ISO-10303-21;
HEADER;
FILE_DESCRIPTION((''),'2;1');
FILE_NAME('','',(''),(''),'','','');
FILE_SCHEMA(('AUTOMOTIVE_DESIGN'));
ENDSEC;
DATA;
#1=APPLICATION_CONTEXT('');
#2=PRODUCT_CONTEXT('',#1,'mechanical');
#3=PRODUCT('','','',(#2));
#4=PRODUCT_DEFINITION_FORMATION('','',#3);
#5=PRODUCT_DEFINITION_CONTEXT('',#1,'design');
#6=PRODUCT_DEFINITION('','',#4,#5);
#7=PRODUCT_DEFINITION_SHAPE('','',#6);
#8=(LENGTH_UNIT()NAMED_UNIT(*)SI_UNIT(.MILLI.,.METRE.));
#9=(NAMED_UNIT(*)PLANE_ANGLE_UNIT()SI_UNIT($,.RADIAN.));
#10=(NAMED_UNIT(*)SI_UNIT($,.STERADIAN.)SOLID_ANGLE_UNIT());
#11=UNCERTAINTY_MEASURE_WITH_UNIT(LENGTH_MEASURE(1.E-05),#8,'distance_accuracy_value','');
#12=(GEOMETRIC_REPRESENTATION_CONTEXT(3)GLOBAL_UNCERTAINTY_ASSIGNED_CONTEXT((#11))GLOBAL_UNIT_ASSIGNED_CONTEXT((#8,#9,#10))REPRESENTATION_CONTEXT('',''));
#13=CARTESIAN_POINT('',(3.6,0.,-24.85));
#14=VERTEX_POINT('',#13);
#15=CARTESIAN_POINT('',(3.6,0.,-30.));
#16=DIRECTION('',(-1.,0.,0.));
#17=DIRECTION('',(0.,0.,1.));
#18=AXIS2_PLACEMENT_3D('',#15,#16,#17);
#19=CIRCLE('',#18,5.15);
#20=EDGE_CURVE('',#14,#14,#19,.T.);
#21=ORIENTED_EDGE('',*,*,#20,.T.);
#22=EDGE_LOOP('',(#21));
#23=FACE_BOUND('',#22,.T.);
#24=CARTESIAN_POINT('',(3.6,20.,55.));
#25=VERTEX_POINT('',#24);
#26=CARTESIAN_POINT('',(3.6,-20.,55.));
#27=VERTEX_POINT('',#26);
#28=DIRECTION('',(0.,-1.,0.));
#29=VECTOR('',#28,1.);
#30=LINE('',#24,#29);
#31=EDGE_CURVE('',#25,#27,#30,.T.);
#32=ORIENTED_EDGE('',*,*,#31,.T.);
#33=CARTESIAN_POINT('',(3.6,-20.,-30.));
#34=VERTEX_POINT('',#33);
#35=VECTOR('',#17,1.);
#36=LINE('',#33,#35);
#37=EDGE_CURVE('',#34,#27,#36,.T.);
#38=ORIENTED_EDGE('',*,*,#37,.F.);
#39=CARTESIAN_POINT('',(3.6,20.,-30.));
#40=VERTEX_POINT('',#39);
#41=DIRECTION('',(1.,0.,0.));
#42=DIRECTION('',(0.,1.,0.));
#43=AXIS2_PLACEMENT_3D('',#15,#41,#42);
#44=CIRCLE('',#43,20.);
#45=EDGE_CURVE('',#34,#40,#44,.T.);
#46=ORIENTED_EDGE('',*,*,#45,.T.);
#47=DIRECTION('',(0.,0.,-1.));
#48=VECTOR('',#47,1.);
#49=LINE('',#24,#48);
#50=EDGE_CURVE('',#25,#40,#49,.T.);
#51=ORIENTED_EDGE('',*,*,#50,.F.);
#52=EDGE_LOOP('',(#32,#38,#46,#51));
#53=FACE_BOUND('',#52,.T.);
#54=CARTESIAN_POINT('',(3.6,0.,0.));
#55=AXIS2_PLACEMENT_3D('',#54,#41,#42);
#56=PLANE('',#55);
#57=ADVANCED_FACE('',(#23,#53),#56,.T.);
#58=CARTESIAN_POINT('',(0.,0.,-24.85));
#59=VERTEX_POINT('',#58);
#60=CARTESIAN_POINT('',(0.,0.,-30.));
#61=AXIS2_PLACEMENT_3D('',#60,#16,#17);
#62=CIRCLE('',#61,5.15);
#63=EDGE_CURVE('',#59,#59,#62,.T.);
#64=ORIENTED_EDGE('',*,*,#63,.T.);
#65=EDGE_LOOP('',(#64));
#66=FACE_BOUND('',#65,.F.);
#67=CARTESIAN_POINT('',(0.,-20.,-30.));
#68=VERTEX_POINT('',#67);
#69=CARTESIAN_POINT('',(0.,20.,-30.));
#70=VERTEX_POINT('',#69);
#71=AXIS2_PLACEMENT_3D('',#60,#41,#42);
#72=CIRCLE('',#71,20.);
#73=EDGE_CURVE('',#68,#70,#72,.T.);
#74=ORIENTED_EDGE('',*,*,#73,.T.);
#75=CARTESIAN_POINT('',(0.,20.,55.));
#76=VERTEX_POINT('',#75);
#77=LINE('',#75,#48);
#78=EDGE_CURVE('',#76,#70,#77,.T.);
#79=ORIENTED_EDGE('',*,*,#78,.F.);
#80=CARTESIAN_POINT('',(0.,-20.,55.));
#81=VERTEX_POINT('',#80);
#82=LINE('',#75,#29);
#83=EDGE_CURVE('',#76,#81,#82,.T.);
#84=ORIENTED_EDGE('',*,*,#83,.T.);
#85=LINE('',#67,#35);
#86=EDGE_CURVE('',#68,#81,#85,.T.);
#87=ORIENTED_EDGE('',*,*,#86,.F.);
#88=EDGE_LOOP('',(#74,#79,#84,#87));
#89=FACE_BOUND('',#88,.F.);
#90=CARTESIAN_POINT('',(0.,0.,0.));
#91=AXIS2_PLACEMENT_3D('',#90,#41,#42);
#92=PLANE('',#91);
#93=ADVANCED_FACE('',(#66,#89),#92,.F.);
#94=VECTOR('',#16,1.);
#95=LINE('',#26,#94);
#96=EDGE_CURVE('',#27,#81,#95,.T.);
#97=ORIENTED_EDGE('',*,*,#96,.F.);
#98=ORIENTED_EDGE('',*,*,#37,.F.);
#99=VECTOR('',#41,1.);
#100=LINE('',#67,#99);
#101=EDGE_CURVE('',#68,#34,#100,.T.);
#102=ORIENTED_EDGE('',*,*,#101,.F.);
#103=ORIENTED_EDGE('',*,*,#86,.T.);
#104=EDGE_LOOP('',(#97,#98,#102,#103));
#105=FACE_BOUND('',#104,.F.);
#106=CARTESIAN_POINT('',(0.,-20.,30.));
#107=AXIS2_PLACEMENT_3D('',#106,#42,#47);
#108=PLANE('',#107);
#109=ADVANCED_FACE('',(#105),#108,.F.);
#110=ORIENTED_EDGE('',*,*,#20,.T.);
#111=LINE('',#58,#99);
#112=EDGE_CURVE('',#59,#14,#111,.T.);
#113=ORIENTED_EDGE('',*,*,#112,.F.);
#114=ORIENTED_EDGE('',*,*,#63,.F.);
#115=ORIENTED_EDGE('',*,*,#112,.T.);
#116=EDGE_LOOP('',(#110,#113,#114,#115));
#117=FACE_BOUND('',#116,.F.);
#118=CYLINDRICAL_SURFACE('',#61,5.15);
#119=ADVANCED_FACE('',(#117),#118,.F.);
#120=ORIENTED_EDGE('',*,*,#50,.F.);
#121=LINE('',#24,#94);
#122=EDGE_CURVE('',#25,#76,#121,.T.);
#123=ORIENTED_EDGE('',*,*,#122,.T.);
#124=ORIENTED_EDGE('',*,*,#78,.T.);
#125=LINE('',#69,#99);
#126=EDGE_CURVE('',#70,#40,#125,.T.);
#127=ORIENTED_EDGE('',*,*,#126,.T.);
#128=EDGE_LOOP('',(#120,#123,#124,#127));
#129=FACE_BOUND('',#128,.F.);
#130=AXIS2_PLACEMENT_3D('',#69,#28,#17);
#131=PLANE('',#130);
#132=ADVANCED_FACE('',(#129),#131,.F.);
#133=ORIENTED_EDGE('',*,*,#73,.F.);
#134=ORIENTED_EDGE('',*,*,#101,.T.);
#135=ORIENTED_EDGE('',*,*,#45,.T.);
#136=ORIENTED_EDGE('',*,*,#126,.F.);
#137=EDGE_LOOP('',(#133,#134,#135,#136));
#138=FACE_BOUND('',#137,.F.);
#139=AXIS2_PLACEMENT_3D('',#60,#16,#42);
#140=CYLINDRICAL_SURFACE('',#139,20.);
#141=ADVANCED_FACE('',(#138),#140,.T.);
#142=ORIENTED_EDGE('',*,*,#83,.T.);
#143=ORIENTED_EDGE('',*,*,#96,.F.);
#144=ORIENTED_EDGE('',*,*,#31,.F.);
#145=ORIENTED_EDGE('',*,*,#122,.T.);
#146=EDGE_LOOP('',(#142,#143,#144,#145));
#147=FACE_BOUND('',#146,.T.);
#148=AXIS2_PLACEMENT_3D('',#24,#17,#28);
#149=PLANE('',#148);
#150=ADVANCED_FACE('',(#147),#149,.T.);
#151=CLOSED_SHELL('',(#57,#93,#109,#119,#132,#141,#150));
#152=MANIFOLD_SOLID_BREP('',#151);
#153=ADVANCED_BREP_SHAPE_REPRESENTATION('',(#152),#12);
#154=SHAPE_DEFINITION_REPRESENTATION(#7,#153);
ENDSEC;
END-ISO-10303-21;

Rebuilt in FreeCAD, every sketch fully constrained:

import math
import FreeCAD as App
import Part
import Sketcher


def add_polygon(sketch, points):
    """Adds a closed chain of lines whose ends are joined by coincident constraints."""
    first, n = sketch.GeometryCount, len(points)
    for a, b in zip(points, points[1:] + points[:1]):
        sketch.addGeometry(Part.LineSegment(App.Vector(*a, 0), App.Vector(*b, 0)), False)
    for i in range(n):
        sketch.addConstraint(Sketcher.Constraint("Coincident", first + i, 2, first + (i + 1) % n, 1))

doc = App.newDocument("Part")
params = doc.addObject("Spreadsheet::Sheet", "Params")
for row, (alias, value) in enumerate([
    ("sketch1_radius", "20 mm"),
    ("sketch1_height", "60 mm"),
    ("pad1_length", "3.6 mm"),
    ("sketch2_width", "40 mm"),
    ("sketch2_height", "50 mm"),
    ("pad2_length", "3.6 mm"),
    ("sketch3_width", "4.3 mm"),
    ("sketch3_height", "10.3 mm"),
    ("pocket1_length", "4 mm"),
    ("sketch4_diameter", "10.3 mm"),
    ("pocket2_length", "4 mm"),
], start=1):
    params.set(f"A{row}", alias)
    params.set(f"B{row}", "=" + value)
    params.setAlias(f"B{row}", alias)

body = doc.addObject("PartDesign::Body", "Body")

sketch1 = doc.addObject("Sketcher::SketchObject", "Sketch")
body.addObject(sketch1)
sketch1.AttachmentSupport = (doc.YZ_Plane, [""])
sketch1.MapMode = "FlatFace"
sketch1.addGeometry(Part.LineSegment(App.Vector(-20, 30, 0), App.Vector(-20, -30, 0)), False)
sketch1.addGeometry(Part.ArcOfCircle(Part.Circle(App.Vector(0, -30, 0), App.Vector(0, 0, 1), 20), math.radians(180), math.radians(360)), False)
sketch1.addGeometry(Part.LineSegment(App.Vector(20, -30, 0), App.Vector(20, 30, 0)), False)
sketch1.addGeometry(Part.LineSegment(App.Vector(20, 30, 0), App.Vector(-20, 30, 0)), False)
sketch1.addConstraint(Sketcher.Constraint("Tangent", 0, 2, 1, 1))
sketch1.addConstraint(Sketcher.Constraint("Tangent", 1, 2, 2, 1))
sketch1.addConstraint(Sketcher.Constraint("Coincident", 2, 2, 3, 1))
sketch1.addConstraint(Sketcher.Constraint("Coincident", 3, 2, 0, 1))
sketch1.addConstraint(Sketcher.Constraint("Vertical", 0))
sketch1.addConstraint(Sketcher.Constraint("Vertical", 2))
sketch1.addConstraint(Sketcher.Constraint("Horizontal", 3))
sketch1.addConstraint(Sketcher.Constraint("Symmetric", 0, 2, 2, 2, -1, 1))
sketch1.addConstraint(Sketcher.Constraint("Radius", 1, 20.0))
sketch1.addConstraint(Sketcher.Constraint("DistanceY", 0, 2, 0, 1, 60.0))
sketch1.setExpression("Constraints[8]", "Params.sketch1_radius")
sketch1.setExpression("Constraints[9]", "Params.sketch1_height")
pad1 = doc.addObject("PartDesign::Pad", "Pad")
body.addObject(pad1)
pad1.Profile = sketch1
pad1.setExpression("Length", "Params.pad1_length")

sketch2 = doc.addObject("Sketcher::SketchObject", "Sketch001")
body.addObject(sketch2)
sketch2.AttachmentSupport = (doc.YZ_Plane, [""])
sketch2.MapMode = "FlatFace"
sketch2.AttachmentOffset = App.Placement(App.Vector(0, 0, 3.6), App.Rotation())
add_polygon(sketch2, [(20, 55), (-20, 55), (-20, 5), (20, 5)])
sketch2.addConstraint(Sketcher.Constraint("Horizontal", 0))
sketch2.addConstraint(Sketcher.Constraint("Vertical", 1))
sketch2.addConstraint(Sketcher.Constraint("Horizontal", 2))
sketch2.addConstraint(Sketcher.Constraint("Vertical", 3))
sketch2.addConstraint(Sketcher.Constraint("DistanceX", 0, 2, 0, 1, 40.0))
sketch2.addConstraint(Sketcher.Constraint("DistanceY", 1, 2, 1, 1, 50.0))
sketch2.addConstraint(Sketcher.Constraint("DistanceY", -1, 1, 1, 2, 5.0))
sketch2.addConstraint(Sketcher.Constraint("DistanceX", 0, 2, -1, 1, 20.0))
sketch2.setExpression("Constraints[8]", "Params.sketch2_width")
sketch2.setExpression("Constraints[9]", "Params.sketch2_height")
pad2 = doc.addObject("PartDesign::Pad", "Pad001")
body.addObject(pad2)
pad2.Profile = sketch2
pad2.setExpression("Length", "Params.pad2_length")
pad2.Reversed = True

sketch3 = doc.addObject("Sketcher::SketchObject", "Sketch002")
body.addObject(sketch3)
sketch3.AttachmentSupport = (doc.YZ_Plane, [""])
sketch3.MapMode = "FlatFace"
add_polygon(sketch3, [(-47, 41.7), (-47, 52), (-42.7, 52), (-42.7, 41.7)])
sketch3.addConstraint(Sketcher.Constraint("Vertical", 0))
sketch3.addConstraint(Sketcher.Constraint("Horizontal", 1))
sketch3.addConstraint(Sketcher.Constraint("Vertical", 2))
sketch3.addConstraint(Sketcher.Constraint("Horizontal", 3))
sketch3.addConstraint(Sketcher.Constraint("DistanceX", 1, 1, 1, 2, 4.3))
sketch3.addConstraint(Sketcher.Constraint("DistanceY", 0, 1, 0, 2, 10.3))
sketch3.addConstraint(Sketcher.Constraint("DistanceX", 0, 2, -1, 1, 47.0))
sketch3.addConstraint(Sketcher.Constraint("DistanceY", -1, 1, 0, 2, 52.0))
sketch3.setExpression("Constraints[8]", "Params.sketch3_width")
sketch3.setExpression("Constraints[9]", "Params.sketch3_height")
pocket1 = doc.addObject("PartDesign::Pocket", "Pocket")
body.addObject(pocket1)
pocket1.Profile = sketch3
pocket1.setExpression("Length", "Params.pocket1_length")
pocket1.Reversed = True

sketch4 = doc.addObject("Sketcher::SketchObject", "Sketch003")
body.addObject(sketch4)
sketch4.AttachmentSupport = (doc.YZ_Plane, [""])
sketch4.MapMode = "FlatFace"
sketch4.addGeometry(Part.Circle(App.Vector(0, -30, 0), App.Vector(0, 0, 1), 5), False)
sketch4.addConstraint(Sketcher.Constraint("PointOnObject", 0, 3, -2))
sketch4.addConstraint(Sketcher.Constraint("Diameter", 0, 10.3))
sketch4.addConstraint(Sketcher.Constraint("DistanceY", 0, 3, -1, 1, 30.0))
sketch4.setExpression("Constraints[1]", "Params.sketch4_diameter")
pocket2 = doc.addObject("PartDesign::Pocket", "Pocket001")
body.addObject(pocket2)
pocket2.Profile = sketch4
pocket2.setExpression("Length", "Params.pocket2_length")
pocket2.Reversed = True

doc.recompute()
